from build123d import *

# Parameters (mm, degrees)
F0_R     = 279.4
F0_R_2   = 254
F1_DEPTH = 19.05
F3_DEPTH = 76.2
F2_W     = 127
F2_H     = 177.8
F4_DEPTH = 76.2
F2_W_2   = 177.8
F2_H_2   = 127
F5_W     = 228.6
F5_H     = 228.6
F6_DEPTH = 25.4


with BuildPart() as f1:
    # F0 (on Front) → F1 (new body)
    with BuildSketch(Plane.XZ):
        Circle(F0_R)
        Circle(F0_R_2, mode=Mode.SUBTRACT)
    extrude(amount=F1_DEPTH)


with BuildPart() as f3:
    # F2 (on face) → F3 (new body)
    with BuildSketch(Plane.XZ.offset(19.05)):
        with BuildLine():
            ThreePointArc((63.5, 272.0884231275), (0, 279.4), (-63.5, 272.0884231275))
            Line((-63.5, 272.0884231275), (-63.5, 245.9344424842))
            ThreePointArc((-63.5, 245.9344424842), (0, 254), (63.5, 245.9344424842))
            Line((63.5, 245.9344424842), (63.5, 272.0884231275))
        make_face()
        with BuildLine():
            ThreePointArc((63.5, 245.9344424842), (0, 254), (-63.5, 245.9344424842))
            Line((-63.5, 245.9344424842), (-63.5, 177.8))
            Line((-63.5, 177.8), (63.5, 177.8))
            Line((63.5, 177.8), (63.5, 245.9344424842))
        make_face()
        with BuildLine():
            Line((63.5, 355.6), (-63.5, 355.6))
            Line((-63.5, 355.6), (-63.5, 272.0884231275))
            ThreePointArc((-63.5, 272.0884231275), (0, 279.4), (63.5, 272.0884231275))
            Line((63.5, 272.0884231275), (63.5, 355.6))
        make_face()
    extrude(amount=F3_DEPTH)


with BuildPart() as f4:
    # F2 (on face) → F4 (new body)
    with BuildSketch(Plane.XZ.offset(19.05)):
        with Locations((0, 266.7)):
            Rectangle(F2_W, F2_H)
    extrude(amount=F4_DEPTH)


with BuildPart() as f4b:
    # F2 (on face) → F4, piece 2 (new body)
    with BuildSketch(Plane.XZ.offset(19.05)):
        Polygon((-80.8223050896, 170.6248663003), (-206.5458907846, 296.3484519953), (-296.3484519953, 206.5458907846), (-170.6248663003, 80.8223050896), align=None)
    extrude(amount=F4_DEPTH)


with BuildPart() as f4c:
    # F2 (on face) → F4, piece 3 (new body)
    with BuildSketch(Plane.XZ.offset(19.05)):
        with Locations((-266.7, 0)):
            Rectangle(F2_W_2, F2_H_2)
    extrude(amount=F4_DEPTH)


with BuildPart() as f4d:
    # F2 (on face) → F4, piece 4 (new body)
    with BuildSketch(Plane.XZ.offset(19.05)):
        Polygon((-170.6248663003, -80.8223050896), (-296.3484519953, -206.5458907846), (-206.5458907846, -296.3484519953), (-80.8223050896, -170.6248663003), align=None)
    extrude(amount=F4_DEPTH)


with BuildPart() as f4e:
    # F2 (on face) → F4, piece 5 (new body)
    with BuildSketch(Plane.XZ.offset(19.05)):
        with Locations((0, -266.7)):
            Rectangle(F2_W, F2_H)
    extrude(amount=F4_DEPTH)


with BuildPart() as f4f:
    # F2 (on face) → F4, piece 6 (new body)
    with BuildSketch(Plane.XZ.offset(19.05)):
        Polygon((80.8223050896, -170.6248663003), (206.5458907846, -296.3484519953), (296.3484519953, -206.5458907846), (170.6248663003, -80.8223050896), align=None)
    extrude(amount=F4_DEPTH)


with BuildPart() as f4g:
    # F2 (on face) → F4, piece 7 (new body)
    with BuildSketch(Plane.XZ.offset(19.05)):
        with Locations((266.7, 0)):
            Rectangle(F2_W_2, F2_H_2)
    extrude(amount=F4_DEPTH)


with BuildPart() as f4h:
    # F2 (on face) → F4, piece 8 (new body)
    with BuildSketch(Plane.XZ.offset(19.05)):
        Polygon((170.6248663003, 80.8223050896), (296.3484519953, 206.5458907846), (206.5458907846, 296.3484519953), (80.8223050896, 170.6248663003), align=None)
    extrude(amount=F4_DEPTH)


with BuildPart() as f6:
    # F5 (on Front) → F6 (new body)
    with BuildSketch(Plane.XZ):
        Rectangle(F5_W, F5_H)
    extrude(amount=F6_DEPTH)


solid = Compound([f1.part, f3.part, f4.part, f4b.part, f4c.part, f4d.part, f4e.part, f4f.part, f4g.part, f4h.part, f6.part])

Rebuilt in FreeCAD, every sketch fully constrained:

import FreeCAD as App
import Part
import Sketcher
Q = App.Units.Quantity


def add_polygon(sketch, points):
    """Adds a closed chain of lines whose ends are joined by coincident constraints."""
    first, n = sketch.GeometryCount, len(points)
    for a, b in zip(points, points[1:] + points[:1]):
        sketch.addGeometry(Part.LineSegment(App.Vector(*a, 0), App.Vector(*b, 0)), False)
    for i in range(n):
        sketch.addConstraint(Sketcher.Constraint("Coincident", first + i, 2, first + (i + 1) % n, 1))

doc = App.newDocument("Part")
body = doc.addObject("PartDesign::Body", "Body")

sketch1 = body.newObject("Sketcher::SketchObject", "Sketch")
sketch1.AttachmentSupport = (doc.getObject("XZ_Plane"), [""])
sketch1.MapMode = "FlatFace"
sketch1.addGeometry([
    Part.Circle(App.Vector(0, 0, 0), App.Vector(0, 0, 1), 279),
    Part.Circle(App.Vector(0, 0, 0), App.Vector(0, 0, 1), 254),
], False)
sketch1.addConstraint([
    Sketcher.Constraint("Coincident", 0, 3, -1, 1),
    Sketcher.Constraint("Coincident", 1, 3, -1, 1),
    Sketcher.Constraint("Diameter", 0, Q("22 in")),
    Sketcher.Constraint("Diameter", 1, Q("20 in")),
])
pad1 = body.newObject("PartDesign::Pad", "Pad")
pad1.Profile = sketch1
pad1.Length = Q("0.75 in")
body2 = doc.addObject("PartDesign::Body", "Body001")

sketch2 = body2.newObject("Sketcher::SketchObject", "Sketch001")
sketch2.AttachmentSupport = (doc.getObject("XZ_Plane001"), [""])
sketch2.MapMode = "FlatFace"
sketch2.AttachmentOffset = App.Placement(App.Vector(0, 0, 0.75 * 25.4), App.Rotation())
add_polygon(sketch2, [(-64, 178), (64, 178), (64, 356), (-64, 356)])
sketch2.addConstraint([
    Sketcher.Constraint("Horizontal", 0),
    Sketcher.Constraint("Vertical", 1),
    Sketcher.Constraint("Horizontal", 2),
    Sketcher.Constraint("Vertical", 3),
    Sketcher.Constraint("DistanceX", 0, 1, 0, 2, Q("5 in")),
    Sketcher.Constraint("DistanceY", 1, 1, 1, 2, Q("7 in")),
    Sketcher.Constraint("DistanceY", -1, 1, 0, 2, Q("7 in")),
    Sketcher.Constraint("DistanceX", -1, 1, 0, 2, Q("2.5 in")),
])
pad2 = body2.newObject("PartDesign::Pad", "Pad001")
pad2.Profile = sketch2
pad2.Length = Q("3 in")
body3 = doc.addObject("PartDesign::Body", "Body002")

sketch3 = body3.newObject("Sketcher::SketchObject", "Sketch002")
sketch3.AttachmentSupport = (doc.getObject("XZ_Plane002"), [""])
sketch3.MapMode = "FlatFace"
sketch3.AttachmentOffset = App.Placement(App.Vector(0, 0, 0.75 * 25.4), App.Rotation())
add_polygon(sketch3, [(-64, 356), (-64, 178), (64, 178), (64, 356)])
sketch3.addConstraint([
    Sketcher.Constraint("Vertical", 0),
    Sketcher.Constraint("Horizontal", 1),
    Sketcher.Constraint("Vertical", 2),
    Sketcher.Constraint("Horizontal", 3),
    Sketcher.Constraint("DistanceX", 1, 1, 1, 2, Q("5 in")),
    Sketcher.Constraint("DistanceY", 0, 2, 0, 1, Q("7 in")),
    Sketcher.Constraint("DistanceY", -1, 1, 0, 2, Q("7 in")),
    Sketcher.Constraint("DistanceX", 0, 2, -1, 1, Q("2.5 in")),
])
pad3 = body3.newObject("PartDesign::Pad", "Pad002")
pad3.Profile = sketch3
pad3.Length = Q("3 in")
body4 = doc.addObject("PartDesign::Body", "Body003")

sketch4 = body4.newObject("Sketcher::SketchObject", "Sketch003")
sketch4.AttachmentSupport = (doc.getObject("XZ_Plane003"), [""])
sketch4.MapMode = "FlatFace"
sketch4.AttachmentOffset = App.Placement(App.Vector(0, 0, 0.75 * 25.4), App.Rotation())
add_polygon(sketch4, [(-81, 171), (-207, 296), (-296, 207), (-171, 81)])
sketch4.addConstraint([
    Sketcher.Constraint("Perpendicular", 0, 1),
    Sketcher.Constraint("Perpendicular", 1, 2),
    Sketcher.Constraint("Perpendicular", 2, 3),
    Sketcher.Constraint("Distance", 0, Q("7 in")),
    Sketcher.Constraint("Distance", 1, Q("5 in")),
    Sketcher.Constraint("Angle", 0, Q("135 deg")),
    Sketcher.Constraint("DistanceX", 0, 2, -1, 1, 206.545891),
    Sketcher.Constraint("DistanceY", -1, 1, 0, 2, 296.348452),
])
pad4 = body4.newObject("PartDesign::Pad", "Pad003")
pad4.Profile = sketch4
pad4.Length = Q("3 in")
body5 = doc.addObject("PartDesign::Body", "Body004")

sketch5 = body5.newObject("Sketcher::SketchObject", "Sketch004")
sketch5.AttachmentSupport = (doc.getObject("XZ_Plane004"), [""])
sketch5.MapMode = "FlatFace"
sketch5.AttachmentOffset = App.Placement(App.Vector(0, 0, 0.75 * 25.4), App.Rotation())
add_polygon(sketch5, [(-356, 64), (-356, -64), (-178, -64), (-178, 64)])
sketch5.addConstraint([
    Sketcher.Constraint("Vertical", 0),
    Sketcher.Constraint("Horizontal", 1),
    Sketcher.Constraint("Vertical", 2),
    Sketcher.Constraint("Horizontal", 3),
    Sketcher.Constraint("DistanceX", 1, 1, 1, 2, Q("7 in")),
    Sketcher.Constraint("DistanceY", 0, 2, 0, 1, Q("5 in")),
    Sketcher.Constraint("DistanceX", 0, 2, -1, 1, Q("14 in")),
    Sketcher.Constraint("DistanceY", 0, 2, -1, 1, Q("2.5 in")),
])
pad5 = body5.newObject("PartDesign::Pad", "Pad004")
pad5.Profile = sketch5
pad5.Length = Q("3 in")
body6 = doc.addObject("PartDesign::Body", "Body005")

sketch6 = body6.newObject("Sketcher::SketchObject", "Sketch005")
sketch6.AttachmentSupport = (doc.getObject("XZ_Plane005"), [""])
sketch6.MapMode = "FlatFace"
sketch6.AttachmentOffset = App.Placement(App.Vector(0, 0, 0.75 * 25.4), App.Rotation())
add_polygon(sketch6, [(-171, -81), (-296, -207), (-207, -296), (-81, -171)])
sketch6.addConstraint([
    Sketcher.Constraint("Perpendicular", 0, 1),
    Sketcher.Constraint("Perpendicular", 1, 2),
    Sketcher.Constraint("Perpendicular", 2, 3),
    Sketcher.Constraint("Distance", 0, Q("7 in")),
    Sketcher.Constraint("Distance", 1, Q("5 in")),
    Sketcher.Constraint("Angle", 0, Q("-135 deg")),
    Sketcher.Constraint("DistanceX", 0, 2, -1, 1, 296.348452),
    Sketcher.Constraint("DistanceY", 0, 2, -1, 1, 206.545891),
])
pad6 = body6.newObject("PartDesign::Pad", "Pad005")
pad6.Profile = sketch6
pad6.Length = Q("3 in")
body7 = doc.addObject("PartDesign::Body", "Body006")

sketch7 = body7.newObject("Sketcher::SketchObject", "Sketch006")
sketch7.AttachmentSupport = (doc.getObject("XZ_Plane006"), [""])
sketch7.MapMode = "FlatFace"
sketch7.AttachmentOffset = App.Placement(App.Vector(0, 0, 0.75 * 25.4), App.Rotation())
add_polygon(sketch7, [(-64, -178), (-64, -356), (64, -356), (64, -178)])
sketch7.addConstraint([
    Sketcher.Constraint("Vertical", 0),
    Sketcher.Constraint("Horizontal", 1),
    Sketcher.Constraint("Vertical", 2),
    Sketcher.Constraint("Horizontal", 3),
    Sketcher.Constraint("DistanceX", 1, 1, 1, 2, Q("5 in")),
    Sketcher.Constraint("DistanceY", 0, 2, 0, 1, Q("7 in")),
    Sketcher.Constraint("DistanceY", 0, 2, -1, 1, Q("14 in")),
    Sketcher.Constraint("DistanceX", 0, 2, -1, 1, Q("2.5 in")),
])
pad7 = body7.newObject("PartDesign::Pad", "Pad006")
pad7.Profile = sketch7
pad7.Length = Q("3 in")
body8 = doc.addObject("PartDesign::Body", "Body007")

sketch8 = body8.newObject("Sketcher::SketchObject", "Sketch007")
sketch8.AttachmentSupport = (doc.getObject("XZ_Plane007"), [""])
sketch8.MapMode = "FlatFace"
sketch8.AttachmentOffset = App.Placement(App.Vector(0, 0, 0.75 * 25.4), App.Rotation())
add_polygon(sketch8, [(81, -171), (207, -296), (296, -207), (171, -81)])
sketch8.addConstraint([
    Sketcher.Constraint("Perpendicular", 0, 1),
    Sketcher.Constraint("Perpendicular", 1, 2),
    Sketcher.Constraint("Perpendicular", 2, 3),
    Sketcher.Constraint("Distance", 0, Q("7 in")),
    Sketcher.Constraint("Distance", 1, Q("5 in")),
    Sketcher.Constraint("Angle", 0, Q("-45 deg")),
    Sketcher.Constraint("DistanceX", -1, 1, 0, 2, 206.545891),
    Sketcher.Constraint("DistanceY", 0, 2, -1, 1, 296.348452),
])
pad8 = body8.newObject("PartDesign::Pad", "Pad007")
pad8.Profile = sketch8
pad8.Length = Q("3 in")
body9 = doc.addObject("PartDesign::Body", "Body008")

sketch9 = body9.newObject("Sketcher::SketchObject", "Sketch008")
sketch9.AttachmentSupport = (doc.getObject("XZ_Plane008"), [""])
sketch9.MapMode = "FlatFace"
sketch9.AttachmentOffset = App.Placement(App.Vector(0, 0, 0.75 * 25.4), App.Rotation())
add_polygon(sketch9, [(178, 64), (178, -64), (356, -64), (356, 64)])
sketch9.addConstraint([
    Sketcher.Constraint("Vertical", 0),
    Sketcher.Constraint("Horizontal", 1),
    Sketcher.Constraint("Vertical", 2),
    Sketcher.Constraint("Horizontal", 3),
    Sketcher.Constraint("DistanceX", 1, 1, 1, 2, Q("7 in")),
    Sketcher.Constraint("DistanceY", 0, 2, 0, 1, Q("5 in")),
    Sketcher.Constraint("DistanceX", -1, 1, 0, 2, Q("7 in")),
    Sketcher.Constraint("DistanceY", 0, 2, -1, 1, Q("2.5 in")),
])
pad9 = body9.newObject("PartDesign::Pad", "Pad008")
pad9.Profile = sketch9
pad9.Length = Q("3 in")
body10 = doc.addObject("PartDesign::Body", "Body009")

sketch10 = body10.newObject("Sketcher::SketchObject", "Sketch009")
sketch10.AttachmentSupport = (doc.getObject("XZ_Plane009"), [""])
sketch10.MapMode = "FlatFace"
sketch10.AttachmentOffset = App.Placement(App.Vector(0, 0, 0.75 * 25.4), App.Rotation())
add_polygon(sketch10, [(171, 81), (296, 207), (207, 296), (81, 171)])
sketch10.addConstraint([
    Sketcher.Constraint("Perpendicular", 0, 1),
    Sketcher.Constraint("Perpendicular", 1, 2),
    Sketcher.Constraint("Perpendicular", 2, 3),
    Sketcher.Constraint("Distance", 0, Q("7 in")),
    Sketcher.Constraint("Distance", 1, Q("5 in")),
    Sketcher.Constraint("Angle", 0, Q("45 deg")),
    Sketcher.Constraint("DistanceX", -1, 1, 0, 2, 296.348452),
    Sketcher.Constraint("DistanceY", -1, 1, 0, 2, 206.545891),
])
pad10 = body10.newObject("PartDesign::Pad", "Pad009")
pad10.Profile = sketch10
pad10.Length = Q("3 in")
body11 = doc.addObject("PartDesign::Body", "Body010")

sketch11 = body11.newObject("Sketcher::SketchObject", "Sketch010")
sketch11.AttachmentSupport = (doc.getObject("XZ_Plane010"), [""])
sketch11.MapMode = "FlatFace"
add_polygon(sketch11, [(-114, 114), (-114, -114), (114, -114), (114, 114)])
sketch11.addConstraint([
    Sketcher.Constraint("Vertical", 0),
    Sketcher.Constraint("Horizontal", 1),
    Sketcher.Constraint("Vertical", 2),
    Sketcher.Constraint("Horizontal", 3),
    Sketcher.Constraint("Symmetric", 0, 2, 2, 2, -1, 1),
    Sketcher.Constraint("Equal", 3, 0),
    Sketcher.Constraint("DistanceX", 1, 1, 1, 2, Q("9 in")),
])
pad11 = body11.newObject("PartDesign::Pad", "Pad010")
pad11.Profile = sketch11
pad11.Length = Q("1 in")

doc.recompute()
